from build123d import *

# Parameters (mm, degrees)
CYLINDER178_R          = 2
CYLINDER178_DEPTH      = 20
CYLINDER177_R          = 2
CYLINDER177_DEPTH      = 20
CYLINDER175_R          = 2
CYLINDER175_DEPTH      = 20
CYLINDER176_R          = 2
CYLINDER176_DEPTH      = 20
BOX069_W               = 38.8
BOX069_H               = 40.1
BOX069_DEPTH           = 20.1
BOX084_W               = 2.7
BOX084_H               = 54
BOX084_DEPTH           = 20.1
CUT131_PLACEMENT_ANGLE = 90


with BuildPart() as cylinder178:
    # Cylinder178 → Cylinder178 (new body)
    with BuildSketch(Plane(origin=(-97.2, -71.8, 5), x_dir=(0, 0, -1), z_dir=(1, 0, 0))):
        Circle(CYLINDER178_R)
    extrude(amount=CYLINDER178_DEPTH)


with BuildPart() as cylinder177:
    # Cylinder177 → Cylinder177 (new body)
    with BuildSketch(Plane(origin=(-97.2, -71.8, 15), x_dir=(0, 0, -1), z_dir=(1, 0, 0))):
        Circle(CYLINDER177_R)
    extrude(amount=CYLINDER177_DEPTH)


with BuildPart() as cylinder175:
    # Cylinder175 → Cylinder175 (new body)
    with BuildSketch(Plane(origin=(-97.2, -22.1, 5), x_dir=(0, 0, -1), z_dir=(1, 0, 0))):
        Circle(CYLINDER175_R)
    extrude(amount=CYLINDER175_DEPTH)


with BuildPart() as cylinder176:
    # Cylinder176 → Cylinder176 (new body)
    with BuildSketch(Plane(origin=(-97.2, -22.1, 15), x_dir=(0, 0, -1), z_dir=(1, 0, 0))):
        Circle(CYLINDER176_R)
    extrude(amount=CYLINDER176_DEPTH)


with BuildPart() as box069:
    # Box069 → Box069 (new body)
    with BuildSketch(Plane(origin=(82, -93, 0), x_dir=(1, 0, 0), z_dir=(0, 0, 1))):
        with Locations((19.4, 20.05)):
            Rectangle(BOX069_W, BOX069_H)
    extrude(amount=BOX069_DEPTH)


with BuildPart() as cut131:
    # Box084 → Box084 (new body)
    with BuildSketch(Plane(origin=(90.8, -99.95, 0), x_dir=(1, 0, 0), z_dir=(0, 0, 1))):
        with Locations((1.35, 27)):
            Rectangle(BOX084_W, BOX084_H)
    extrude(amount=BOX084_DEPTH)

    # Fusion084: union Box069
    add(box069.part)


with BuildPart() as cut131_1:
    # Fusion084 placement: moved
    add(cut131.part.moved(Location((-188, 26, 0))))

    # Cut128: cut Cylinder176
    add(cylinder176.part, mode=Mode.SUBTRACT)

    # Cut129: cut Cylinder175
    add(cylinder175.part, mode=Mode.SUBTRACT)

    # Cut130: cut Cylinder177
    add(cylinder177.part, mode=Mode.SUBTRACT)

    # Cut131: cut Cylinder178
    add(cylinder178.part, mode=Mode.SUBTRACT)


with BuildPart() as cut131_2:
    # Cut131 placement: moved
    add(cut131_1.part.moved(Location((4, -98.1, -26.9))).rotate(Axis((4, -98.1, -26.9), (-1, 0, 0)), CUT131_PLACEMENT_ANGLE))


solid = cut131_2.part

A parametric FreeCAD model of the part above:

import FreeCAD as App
import Part
import Sketcher

doc = App.newDocument("Part")
body = doc.addObject("PartDesign::Body", "Body")

sketch1 = body.newObject("Sketcher::SketchObject", "Sketch")
sketch1.AttachmentSupport = (doc.getObject("YZ_Plane"), [""])
sketch1.MapMode = "FlatFace"
sketch1.AttachmentOffset = App.Placement(App.Vector(0, 0, -97.2), App.Rotation())
sketch1.addGeometry(Part.Circle(App.Vector(-71.8, 5, 0), App.Vector(0, 0, 1), 2), False)
sketch1.addConstraint([
    Sketcher.Constraint("Diameter", 0, 4.0),
    Sketcher.Constraint("DistanceY", -1, 1, 0, 3, 5.0),
    Sketcher.Constraint("DistanceX", 0, 3, -1, 1, 71.8),
])
pad1 = body.newObject("PartDesign::Pad", "Pad")
pad1.Profile = sketch1
pad1.Length = 20
body2 = doc.addObject("PartDesign::Body", "Body001")

sketch2 = body2.newObject("Sketcher::SketchObject", "Sketch001")
sketch2.AttachmentSupport = (doc.getObject("YZ_Plane001"), [""])
sketch2.MapMode = "FlatFace"
sketch2.AttachmentOffset = App.Placement(App.Vector(0, 0, -97.2), App.Rotation())
sketch2.addGeometry(Part.Circle(App.Vector(-71.8, 15, 0), App.Vector(0, 0, 1), 2), False)
sketch2.addConstraint([
    Sketcher.Constraint("Diameter", 0, 4.0),
    Sketcher.Constraint("DistanceY", -1, 1, 0, 3, 15.0),
    Sketcher.Constraint("DistanceX", 0, 3, -1, 1, 71.8),
])
pad2 = body2.newObject("PartDesign::Pad", "Pad001")
pad2.Profile = sketch2
pad2.Length = 20
body3 = doc.addObject("PartDesign::Body", "Body002")

sketch3 = body3.newObject("Sketcher::SketchObject", "Sketch002")
sketch3.AttachmentSupport = (doc.getObject("YZ_Plane002"), [""])
sketch3.MapMode = "FlatFace"
sketch3.AttachmentOffset = App.Placement(App.Vector(0, 0, -97.2), App.Rotation())
sketch3.addGeometry(Part.Circle(App.Vector(-22.1, 5, 0), App.Vector(0, 0, 1), 2), False)
sketch3.addConstraint([
    Sketcher.Constraint("Diameter", 0, 4.0),
    Sketcher.Constraint("DistanceY", -1, 1, 0, 3, 5.0),
    Sketcher.Constraint("DistanceX", 0, 3, -1, 1, 22.1),
])
pad3 = body3.newObject("PartDesign::Pad", "Pad002")
pad3.Profile = sketch3
pad3.Length = 20
body4 = doc.addObject("PartDesign::Body", "Body003")

sketch4 = body4.newObject("Sketcher::SketchObject", "Sketch003")
sketch4.AttachmentSupport = (doc.getObject("YZ_Plane003"), [""])
sketch4.MapMode = "FlatFace"
sketch4.AttachmentOffset = App.Placement(App.Vector(0, 0, -97.2), App.Rotation())
sketch4.addGeometry(Part.Circle(App.Vector(-22.1, 15, 0), App.Vector(0, 0, 1), 2), False)
sketch4.addConstraint([
    Sketcher.Constraint("Diameter", 0, 4.0),
    Sketcher.Constraint("DistanceY", -1, 1, 0, 3, 15.0),
    Sketcher.Constraint("DistanceX", 0, 3, -1, 1, 22.1),
])
pad4 = body4.newObject("PartDesign::Pad", "Pad003")
pad4.Profile = sketch4
pad4.Length = 20
body5 = doc.addObject("PartDesign::Body", "Body004")

sketch5 = body5.newObject("Sketcher::SketchObject", "Sketch004")
sketch5.AttachmentSupport = (doc.getObject("XY_Plane004"), [""])
sketch5.MapMode = "FlatFace"
sketch5.addGeometry([
    Part.LineSegment(App.Vector(82, -53, 0), App.Vector(82, -93, 0)),
    Part.LineSegment(App.Vector(82, -93, 0), App.Vector(121, -93, 0)),
    Part.LineSegment(App.Vector(121, -93, 0), App.Vector(121, -53, 0)),
    Part.LineSegment(App.Vector(121, -53, 0), App.Vector(82, -53, 0)),
], False)
sketch5.addConstraint([
    Sketcher.Constraint("Coincident", 0, 2, 1, 1),
    Sketcher.Constraint("Coincident", 1, 2, 2, 1),
    Sketcher.Constraint("Coincident", 2, 2, 3, 1),
    Sketcher.Constraint("Coincident", 3, 2, 0, 1),
    Sketcher.Constraint("Vertical", 0),
    Sketcher.Constraint("Horizontal", 1),
    Sketcher.Constraint("Vertical", 2),
    Sketcher.Constraint("Horizontal", 3),
    Sketcher.Constraint("DistanceX", 1, 1, 1, 2, 38.8),
    Sketcher.Constraint("DistanceY", 0, 2, 0, 1, 40.1),
    Sketcher.Constraint("DistanceX", -1, 1, 0, 2, 82.0),
    Sketcher.Constraint("DistanceY", 0, 2, -1, 1, 93.0),
])
pad5 = body5.newObject("PartDesign::Pad", "Pad004")
pad5.Profile = sketch5
pad5.Length = 20.1
body6 = doc.addObject("PartDesign::Body", "Body005")

sketch6 = body6.newObject("Sketcher::SketchObject", "Sketch005")
sketch6.AttachmentSupport = (doc.getObject("XY_Plane005"), [""])
sketch6.MapMode = "FlatFace"
sketch6.addGeometry([
    Part.LineSegment(App.Vector(90.8, -46, 0), App.Vector(90.8, -100, 0)),
    Part.LineSegment(App.Vector(90.8, -100, 0), App.Vector(93.5, -100, 0)),
    Part.LineSegment(App.Vector(93.5, -100, 0), App.Vector(93.5, -46, 0)),
    Part.LineSegment(App.Vector(93.5, -46, 0), App.Vector(90.8, -46, 0)),
], False)
sketch6.addConstraint([
    Sketcher.Constraint("Coincident", 0, 2, 1, 1),
    Sketcher.Constraint("Coincident", 1, 2, 2, 1),
    Sketcher.Constraint("Coincident", 2, 2, 3, 1),
    Sketcher.Constraint("Coincident", 3, 2, 0, 1),
    Sketcher.Constraint("Vertical", 0),
    Sketcher.Constraint("Horizontal", 1),
    Sketcher.Constraint("Vertical", 2),
    Sketcher.Constraint("Horizontal", 3),
    Sketcher.Constraint("DistanceY", 0, 2, 0, 1, 54.0),
    Sketcher.Constraint("DistanceX", 1, 1, 1, 2, 2.7),
    Sketcher.Constraint("DistanceX", -1, 1, 0, 2, 90.8),
    Sketcher.Constraint("DistanceY", 0, 2, -1, 1, 99.95),
])
pad6 = body6.newObject("PartDesign::Pad", "Pad005")
pad6.Profile = sketch6
pad6.Length = 20.1
doc.recompute()

boolean = body6.newObject("PartDesign::Boolean", "Boolean")
boolean.Type = "Fuse"
boolean.addObjects([body5])
body7 = doc.addObject("PartDesign::Body", "Body006")
doc.recompute()

body6.Placement = App.Placement(App.Vector(-188, 26, 0), App.Rotation(App.Vector(0, 0, 1), 0))
boolean2 = body7.newObject("PartDesign::Boolean", "Boolean001")
boolean2.Type = "Fuse"
boolean2.addObjects([body6])
doc.recompute()

boolean3 = body7.newObject("PartDesign::Boolean", "Boolean002")
boolean3.Type = "Cut"
boolean3.addObjects([body4])
doc.recompute()

boolean4 = body7.newObject("PartDesign::Boolean", "Boolean003")
boolean4.Type = "Cut"
boolean4.addObjects([body3])
doc.recompute()

boolean5 = body7.newObject("PartDesign::Boolean", "Boolean004")
boolean5.Type = "Cut"
boolean5.addObjects([body2])
doc.recompute()

boolean6 = body7.newObject("PartDesign::Boolean", "Boolean005")
boolean6.Type = "Cut"
boolean6.addObjects([body])
body8 = doc.addObject("PartDesign::Body", "Body007")
doc.recompute()

body7.Placement = App.Placement(App.Vector(4, -98.1, -26.9), App.Rotation(App.Vector(-1, 0, 0), 90))
boolean7 = body8.newObject("PartDesign::Boolean", "Boolean006")
boolean7.Type = "Fuse"
boolean7.addObjects([body7])

doc.recompute()
